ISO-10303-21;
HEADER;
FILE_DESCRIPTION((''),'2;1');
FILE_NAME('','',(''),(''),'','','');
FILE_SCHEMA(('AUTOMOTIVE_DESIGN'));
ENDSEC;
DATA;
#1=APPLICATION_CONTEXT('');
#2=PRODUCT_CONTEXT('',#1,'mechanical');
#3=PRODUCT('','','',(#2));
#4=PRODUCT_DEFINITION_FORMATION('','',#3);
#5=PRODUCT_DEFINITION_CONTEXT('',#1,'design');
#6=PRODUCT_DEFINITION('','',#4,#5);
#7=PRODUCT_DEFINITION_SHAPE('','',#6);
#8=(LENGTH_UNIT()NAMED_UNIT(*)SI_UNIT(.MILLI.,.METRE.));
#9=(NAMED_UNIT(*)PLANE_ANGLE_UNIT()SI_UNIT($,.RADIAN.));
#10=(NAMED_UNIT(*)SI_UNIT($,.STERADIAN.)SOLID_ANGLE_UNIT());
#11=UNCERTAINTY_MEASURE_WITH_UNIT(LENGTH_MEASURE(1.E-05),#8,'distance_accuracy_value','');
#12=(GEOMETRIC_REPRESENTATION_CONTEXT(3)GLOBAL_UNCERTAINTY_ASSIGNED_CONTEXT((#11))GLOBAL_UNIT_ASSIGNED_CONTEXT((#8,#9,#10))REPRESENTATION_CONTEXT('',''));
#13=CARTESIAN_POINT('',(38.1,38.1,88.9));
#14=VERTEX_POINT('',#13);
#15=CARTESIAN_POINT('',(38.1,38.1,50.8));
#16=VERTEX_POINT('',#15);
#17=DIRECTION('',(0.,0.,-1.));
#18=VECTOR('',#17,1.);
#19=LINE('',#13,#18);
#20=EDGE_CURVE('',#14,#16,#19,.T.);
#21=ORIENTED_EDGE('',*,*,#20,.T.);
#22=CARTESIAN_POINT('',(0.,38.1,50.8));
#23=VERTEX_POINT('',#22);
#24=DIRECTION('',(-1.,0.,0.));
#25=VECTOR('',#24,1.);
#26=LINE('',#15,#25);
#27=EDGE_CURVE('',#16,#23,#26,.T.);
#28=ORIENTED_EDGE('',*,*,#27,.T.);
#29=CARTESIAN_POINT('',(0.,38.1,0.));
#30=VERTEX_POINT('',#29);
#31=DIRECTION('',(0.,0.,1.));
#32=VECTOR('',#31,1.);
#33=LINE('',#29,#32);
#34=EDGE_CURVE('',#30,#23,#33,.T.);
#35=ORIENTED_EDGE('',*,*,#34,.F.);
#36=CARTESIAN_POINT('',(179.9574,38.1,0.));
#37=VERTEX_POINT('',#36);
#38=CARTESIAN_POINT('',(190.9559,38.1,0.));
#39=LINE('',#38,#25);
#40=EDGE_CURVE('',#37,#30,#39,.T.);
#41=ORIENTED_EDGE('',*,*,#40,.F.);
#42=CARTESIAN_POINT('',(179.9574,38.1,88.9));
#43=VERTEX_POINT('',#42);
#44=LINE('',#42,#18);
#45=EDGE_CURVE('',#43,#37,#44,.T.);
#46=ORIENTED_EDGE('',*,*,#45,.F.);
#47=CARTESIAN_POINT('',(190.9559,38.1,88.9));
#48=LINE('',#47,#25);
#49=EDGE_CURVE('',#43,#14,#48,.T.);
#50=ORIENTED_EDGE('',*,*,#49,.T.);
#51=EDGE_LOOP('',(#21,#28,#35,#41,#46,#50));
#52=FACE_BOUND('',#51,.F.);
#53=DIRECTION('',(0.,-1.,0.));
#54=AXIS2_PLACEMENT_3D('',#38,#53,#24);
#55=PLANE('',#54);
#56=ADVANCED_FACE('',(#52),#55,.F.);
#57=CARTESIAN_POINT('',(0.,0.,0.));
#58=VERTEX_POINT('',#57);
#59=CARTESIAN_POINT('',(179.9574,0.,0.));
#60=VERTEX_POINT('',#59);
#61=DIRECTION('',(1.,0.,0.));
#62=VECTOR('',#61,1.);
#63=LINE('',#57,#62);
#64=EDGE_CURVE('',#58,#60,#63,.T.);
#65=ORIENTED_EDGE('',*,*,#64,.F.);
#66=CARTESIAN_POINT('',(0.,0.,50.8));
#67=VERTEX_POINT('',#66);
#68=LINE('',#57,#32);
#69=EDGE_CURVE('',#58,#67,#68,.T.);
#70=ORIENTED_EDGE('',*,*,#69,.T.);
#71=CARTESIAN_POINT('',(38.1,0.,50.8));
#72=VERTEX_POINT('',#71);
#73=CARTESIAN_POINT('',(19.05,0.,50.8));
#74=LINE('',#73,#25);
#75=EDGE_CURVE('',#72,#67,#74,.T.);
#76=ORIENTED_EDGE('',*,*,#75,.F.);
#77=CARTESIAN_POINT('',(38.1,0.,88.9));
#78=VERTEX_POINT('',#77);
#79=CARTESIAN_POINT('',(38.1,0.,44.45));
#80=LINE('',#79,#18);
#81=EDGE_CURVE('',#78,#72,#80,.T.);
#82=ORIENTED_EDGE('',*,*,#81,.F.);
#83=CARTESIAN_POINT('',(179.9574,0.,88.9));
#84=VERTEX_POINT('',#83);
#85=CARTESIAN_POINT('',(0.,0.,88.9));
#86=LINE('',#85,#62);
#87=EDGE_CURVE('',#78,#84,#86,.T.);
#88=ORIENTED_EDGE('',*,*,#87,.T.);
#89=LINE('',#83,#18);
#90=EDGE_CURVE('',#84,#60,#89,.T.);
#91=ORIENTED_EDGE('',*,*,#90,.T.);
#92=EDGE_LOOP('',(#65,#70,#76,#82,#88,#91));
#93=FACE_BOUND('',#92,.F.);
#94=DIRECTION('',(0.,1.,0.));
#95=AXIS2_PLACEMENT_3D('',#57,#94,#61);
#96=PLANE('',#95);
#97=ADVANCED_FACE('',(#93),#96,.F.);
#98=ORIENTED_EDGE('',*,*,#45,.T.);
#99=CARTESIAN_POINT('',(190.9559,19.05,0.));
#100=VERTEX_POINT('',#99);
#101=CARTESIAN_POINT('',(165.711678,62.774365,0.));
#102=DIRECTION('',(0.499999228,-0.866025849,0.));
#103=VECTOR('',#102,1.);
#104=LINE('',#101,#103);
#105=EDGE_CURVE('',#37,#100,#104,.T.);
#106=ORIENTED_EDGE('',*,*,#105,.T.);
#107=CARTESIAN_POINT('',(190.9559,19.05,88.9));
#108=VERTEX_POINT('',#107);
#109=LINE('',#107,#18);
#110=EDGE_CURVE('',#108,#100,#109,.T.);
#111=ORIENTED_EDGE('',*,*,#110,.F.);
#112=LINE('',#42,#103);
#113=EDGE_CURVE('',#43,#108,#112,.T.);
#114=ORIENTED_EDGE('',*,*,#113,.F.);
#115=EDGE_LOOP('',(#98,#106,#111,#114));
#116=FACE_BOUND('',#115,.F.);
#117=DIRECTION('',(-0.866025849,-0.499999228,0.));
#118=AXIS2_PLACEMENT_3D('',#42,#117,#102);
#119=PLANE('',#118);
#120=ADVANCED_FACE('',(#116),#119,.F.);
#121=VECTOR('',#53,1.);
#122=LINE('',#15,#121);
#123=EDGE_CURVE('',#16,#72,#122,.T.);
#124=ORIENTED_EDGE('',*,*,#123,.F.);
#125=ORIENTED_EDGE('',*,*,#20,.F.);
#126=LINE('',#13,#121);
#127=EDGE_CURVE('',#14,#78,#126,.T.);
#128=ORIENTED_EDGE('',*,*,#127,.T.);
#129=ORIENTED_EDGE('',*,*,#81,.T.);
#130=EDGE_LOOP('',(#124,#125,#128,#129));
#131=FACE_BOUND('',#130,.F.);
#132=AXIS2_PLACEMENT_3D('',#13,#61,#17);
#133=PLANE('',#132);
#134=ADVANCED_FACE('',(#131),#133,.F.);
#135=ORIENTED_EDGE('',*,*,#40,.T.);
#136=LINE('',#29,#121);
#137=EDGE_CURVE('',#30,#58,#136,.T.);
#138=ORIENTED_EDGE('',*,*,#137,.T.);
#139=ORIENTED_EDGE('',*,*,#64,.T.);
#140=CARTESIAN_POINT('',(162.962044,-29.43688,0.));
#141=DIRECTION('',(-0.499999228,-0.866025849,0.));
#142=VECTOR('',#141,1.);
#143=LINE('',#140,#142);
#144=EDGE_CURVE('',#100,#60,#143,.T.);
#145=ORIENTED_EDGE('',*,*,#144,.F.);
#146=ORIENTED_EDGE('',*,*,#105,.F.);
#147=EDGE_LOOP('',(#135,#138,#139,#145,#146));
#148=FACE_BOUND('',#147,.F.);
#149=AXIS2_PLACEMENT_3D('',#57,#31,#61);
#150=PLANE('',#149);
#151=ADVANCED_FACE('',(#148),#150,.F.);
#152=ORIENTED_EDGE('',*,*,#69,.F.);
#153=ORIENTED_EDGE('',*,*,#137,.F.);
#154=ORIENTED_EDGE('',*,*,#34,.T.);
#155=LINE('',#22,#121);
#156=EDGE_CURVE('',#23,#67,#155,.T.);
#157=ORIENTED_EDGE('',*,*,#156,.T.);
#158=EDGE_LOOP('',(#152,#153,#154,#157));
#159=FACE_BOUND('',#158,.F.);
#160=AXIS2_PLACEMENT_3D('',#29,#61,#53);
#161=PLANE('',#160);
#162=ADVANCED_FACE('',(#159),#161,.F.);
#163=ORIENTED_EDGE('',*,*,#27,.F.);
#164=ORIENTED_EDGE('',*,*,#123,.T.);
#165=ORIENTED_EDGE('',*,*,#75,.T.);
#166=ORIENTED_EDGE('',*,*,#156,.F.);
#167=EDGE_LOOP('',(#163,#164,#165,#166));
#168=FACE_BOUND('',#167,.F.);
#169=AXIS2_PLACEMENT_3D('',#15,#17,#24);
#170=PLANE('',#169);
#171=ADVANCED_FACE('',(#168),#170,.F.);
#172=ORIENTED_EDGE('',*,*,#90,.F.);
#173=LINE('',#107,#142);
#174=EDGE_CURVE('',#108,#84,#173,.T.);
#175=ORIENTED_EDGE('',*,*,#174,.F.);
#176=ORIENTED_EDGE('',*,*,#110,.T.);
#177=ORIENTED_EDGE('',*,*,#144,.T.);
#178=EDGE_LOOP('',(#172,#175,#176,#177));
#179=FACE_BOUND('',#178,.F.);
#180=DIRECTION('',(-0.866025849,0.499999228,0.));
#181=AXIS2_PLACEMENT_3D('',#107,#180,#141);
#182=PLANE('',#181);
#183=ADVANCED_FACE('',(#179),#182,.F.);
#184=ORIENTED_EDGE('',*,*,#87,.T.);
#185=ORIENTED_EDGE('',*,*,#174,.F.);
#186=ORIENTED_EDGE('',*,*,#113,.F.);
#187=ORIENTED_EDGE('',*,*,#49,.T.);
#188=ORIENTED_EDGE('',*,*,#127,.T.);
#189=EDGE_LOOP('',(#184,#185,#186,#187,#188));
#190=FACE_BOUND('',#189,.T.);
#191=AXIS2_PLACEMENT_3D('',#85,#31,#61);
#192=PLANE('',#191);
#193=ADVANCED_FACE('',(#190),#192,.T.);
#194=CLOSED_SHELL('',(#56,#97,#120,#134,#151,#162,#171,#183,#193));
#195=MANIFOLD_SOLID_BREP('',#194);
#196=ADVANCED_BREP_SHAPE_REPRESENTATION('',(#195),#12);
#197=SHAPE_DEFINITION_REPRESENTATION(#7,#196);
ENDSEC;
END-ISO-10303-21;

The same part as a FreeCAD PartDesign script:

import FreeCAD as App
import Part
import Sketcher
Q = App.Units.Quantity


def add_polygon(sketch, points):
    """Adds a closed chain of lines whose ends are joined by coincident constraints."""
    first, n = sketch.GeometryCount, len(points)
    for a, b in zip(points, points[1:] + points[:1]):
        sketch.addGeometry(Part.LineSegment(App.Vector(*a, 0), App.Vector(*b, 0)), False)
    for i in range(n):
        sketch.addConstraint(Sketcher.Constraint("Coincident", first + i, 2, first + (i + 1) % n, 1))

doc = App.newDocument("Part")
body = doc.addObject("PartDesign::Body", "Body")

# Sketch on XY plane
sketch1 = body.newObject("Sketcher::SketchObject", "Sketch")
sketch1.AttachmentSupport = (doc.getObject("XY_Plane"), [""])
sketch1.MapMode = "FlatFace"
add_polygon(sketch1, [(0, 38.1), (0, 0), (190.9559, 0), (190.9559, 38.1)])  # lines 0-3
sketch1.addConstraint([
    Sketcher.Constraint("Vertical", 0),
    Sketcher.Constraint("Horizontal", 1),
    Sketcher.Constraint("Vertical", 2),
    Sketcher.Constraint("Horizontal", 3),
    Sketcher.Constraint("Coincident", 0, 2, -1, 1),
    Sketcher.Constraint("DistanceY", 0, 2, 0, 1, Q("1.5 in")),
    Sketcher.Constraint("DistanceX", 1, 1, 1, 2, Q("190.956 mm")),
])
pad1 = body.newObject("PartDesign::Pad", "Pad")
pad1.Profile = sketch1
pad1.Length = Q("3.5 in")

# Sketch on XZ plane
sketch2 = body.newObject("Sketcher::SketchObject", "Sketch001")
sketch2.AttachmentSupport = (doc.getObject("XZ_Plane"), [""])
sketch2.MapMode = "FlatFace"
sketch2.AttachmentOffset = App.Placement(App.Vector(0, 0, -1.5 * 25.4), App.Rotation())
add_polygon(sketch2, [(0, 50.8), (0, 88.9), (38.1, 88.9), (38.1, 50.8)])  # lines 0-3
sketch2.addConstraint([
    Sketcher.Constraint("Vertical", 0),
    Sketcher.Constraint("Horizontal", 1),
    Sketcher.Constraint("Vertical", 2),
    Sketcher.Constraint("Horizontal", 3),
    Sketcher.Constraint("PointOnObject", 0, 2, -2),
    Sketcher.Constraint("Equal", 3, 0),
    Sketcher.Constraint("DistanceX", 1, 1, 1, 2, Q("1.5 in")),
    Sketcher.Constraint("DistanceY", -1, 1, 2, 2, Q("2 in")),
])
pocket1 = body.newObject("PartDesign::Pocket", "Pocket")
pocket1.Profile = sketch2
pocket1.Type = "ThroughAll"
pocket1.Reversed = True

# Sketch on XY plane
sketch3 = body.newObject("Sketcher::SketchObject", "Sketch002")
sketch3.AttachmentSupport = (doc.getObject("XY_Plane"), [""])
sketch3.MapMode = "FlatFace"
sketch3.AttachmentOffset = App.Placement(App.Vector(0, 0, 3.5 * 25.4), App.Rotation())
add_polygon(sketch3, [(190.9559, 19.05), (190.9559, 38.1), (179.9574, 38.1)])  # lines 0-2
add_polygon(sketch3, [(190.9559, 0), (190.9559, 19.05), (179.9574, 0)])  # lines 3-5
sketch3.addConstraint([
    Sketcher.Constraint("Vertical", 0),
    Sketcher.Constraint("Horizontal", 1),
    Sketcher.Constraint("Vertical", 3),
    Sketcher.Constraint("Horizontal", 5),
    Sketcher.Constraint("Coincident", 3, 2, 2, 2),
    Sketcher.Constraint("PointOnObject", 4, 2, -1),
    Sketcher.Constraint("Vertical", 1, 2, 4, 2),
    Sketcher.Constraint("Equal", 0, 3),
    Sketcher.Constraint("Angle", 2, Q("-60 deg")),
    Sketcher.Constraint("DistanceY", 0, 1, 0, 2, Q("0.75 in")),
    Sketcher.Constraint("DistanceX", -1, 1, 0, 2, Q("190.956 mm")),
])
pocket2 = body.newObject("PartDesign::Pocket", "Pocket001")
pocket2.Profile = sketch3
pocket2.Type = "ThroughAll"

doc.recompute()
